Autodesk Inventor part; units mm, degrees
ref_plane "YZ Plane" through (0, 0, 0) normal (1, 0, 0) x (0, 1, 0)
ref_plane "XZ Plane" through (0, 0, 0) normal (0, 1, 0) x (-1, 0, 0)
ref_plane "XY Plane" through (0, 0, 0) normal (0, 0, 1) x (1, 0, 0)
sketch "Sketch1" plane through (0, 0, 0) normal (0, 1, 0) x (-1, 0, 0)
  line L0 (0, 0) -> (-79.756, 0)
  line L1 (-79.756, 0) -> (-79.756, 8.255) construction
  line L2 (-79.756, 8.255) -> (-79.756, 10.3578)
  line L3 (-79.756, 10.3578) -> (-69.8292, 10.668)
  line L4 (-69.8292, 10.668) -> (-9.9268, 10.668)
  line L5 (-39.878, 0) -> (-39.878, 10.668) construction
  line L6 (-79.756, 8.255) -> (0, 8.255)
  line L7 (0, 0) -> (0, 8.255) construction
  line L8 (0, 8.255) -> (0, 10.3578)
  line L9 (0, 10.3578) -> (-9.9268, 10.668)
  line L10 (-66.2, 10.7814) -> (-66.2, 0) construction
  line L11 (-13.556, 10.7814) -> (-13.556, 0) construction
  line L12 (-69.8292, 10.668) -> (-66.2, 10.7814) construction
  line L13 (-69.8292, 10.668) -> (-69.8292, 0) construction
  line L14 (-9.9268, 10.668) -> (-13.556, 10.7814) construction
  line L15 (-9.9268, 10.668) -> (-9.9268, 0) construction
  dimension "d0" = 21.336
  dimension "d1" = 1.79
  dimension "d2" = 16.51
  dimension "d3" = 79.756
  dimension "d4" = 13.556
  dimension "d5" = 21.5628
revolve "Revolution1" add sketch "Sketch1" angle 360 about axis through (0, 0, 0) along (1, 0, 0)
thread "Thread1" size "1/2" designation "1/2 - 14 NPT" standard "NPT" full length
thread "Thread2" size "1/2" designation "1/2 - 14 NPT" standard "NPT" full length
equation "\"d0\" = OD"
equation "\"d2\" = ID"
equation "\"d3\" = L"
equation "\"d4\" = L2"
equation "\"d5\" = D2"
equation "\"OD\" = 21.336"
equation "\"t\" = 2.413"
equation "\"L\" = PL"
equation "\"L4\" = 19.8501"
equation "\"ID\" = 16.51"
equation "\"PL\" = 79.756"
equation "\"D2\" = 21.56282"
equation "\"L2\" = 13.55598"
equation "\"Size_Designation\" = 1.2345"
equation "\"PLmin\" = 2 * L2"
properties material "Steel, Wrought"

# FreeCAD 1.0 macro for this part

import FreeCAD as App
import Part
import Sketcher

V = App.Vector
Q = App.Units.Quantity


def add_polygon(sketch, points):
    """Adds a closed chain of lines whose ends are joined by coincident constraints."""
    first, n = sketch.GeometryCount, len(points)
    for a, b in zip(points, points[1:] + points[:1]):
        sketch.addGeometry(Part.LineSegment(App.Vector(*a, 0), App.Vector(*b, 0)), False)
    for i in range(n):
        sketch.addConstraint(Sketcher.Constraint("Coincident", first + i, 2, first + (i + 1) % n, 1))

doc = App.newDocument("Part")
body = doc.addObject("PartDesign::Body", "Body")

sketch1 = body.newObject("Sketcher::SketchObject", "Sketch")
sketch1.AttachmentSupport = (doc.getObject("XZ_Plane"), [""])
sketch1.MapMode = "FlatFace"
add_polygon(sketch1, [(79.756, 10.3578), (79.756, 8.255), (0, 8.255), (0, 10.3578), (9.9268, 10.668), (69.8292, 10.668)])
sketch1.addConstraint(Sketcher.Constraint("Vertical", 0))
sketch1.addConstraint(Sketcher.Constraint("Horizontal", 1))
sketch1.addConstraint(Sketcher.Constraint("Vertical", 2))
sketch1.addConstraint(Sketcher.Constraint("Horizontal", 4))
sketch1.addConstraint(Sketcher.Constraint("PointOnObject", 1, 2, -2))
sketch1.addConstraint(Sketcher.Constraint("Horizontal", 2, 2, 5, 2))
sketch1.addConstraint(Sketcher.Constraint("Equal", 3, 5))
sketch1.addConstraint(Sketcher.Constraint("DistanceX", 1, 2, 1, 1, Q("3.14 in")))
sketch1.addConstraint(Sketcher.Constraint("Angle", 3, Q("1.7898 deg")))
sketch1.addConstraint(Sketcher.Constraint("DistanceY", -1, 1, 3, 2, Q("0.42 in")))
sketch1.addConstraint(Sketcher.Constraint("Distance", 3, Q("0.391 in")))
sketch1.addConstraint(Sketcher.Constraint("DistanceY", -1, 1, 0, 2, Q("0.325 in")))
revolution = body.newObject("PartDesign::Revolution", "Revolution")
revolution.Profile = sketch1
revolution.ReferenceAxis = (sketch1, ["H_Axis"])
revolution.Angle = 360

doc.recompute()
